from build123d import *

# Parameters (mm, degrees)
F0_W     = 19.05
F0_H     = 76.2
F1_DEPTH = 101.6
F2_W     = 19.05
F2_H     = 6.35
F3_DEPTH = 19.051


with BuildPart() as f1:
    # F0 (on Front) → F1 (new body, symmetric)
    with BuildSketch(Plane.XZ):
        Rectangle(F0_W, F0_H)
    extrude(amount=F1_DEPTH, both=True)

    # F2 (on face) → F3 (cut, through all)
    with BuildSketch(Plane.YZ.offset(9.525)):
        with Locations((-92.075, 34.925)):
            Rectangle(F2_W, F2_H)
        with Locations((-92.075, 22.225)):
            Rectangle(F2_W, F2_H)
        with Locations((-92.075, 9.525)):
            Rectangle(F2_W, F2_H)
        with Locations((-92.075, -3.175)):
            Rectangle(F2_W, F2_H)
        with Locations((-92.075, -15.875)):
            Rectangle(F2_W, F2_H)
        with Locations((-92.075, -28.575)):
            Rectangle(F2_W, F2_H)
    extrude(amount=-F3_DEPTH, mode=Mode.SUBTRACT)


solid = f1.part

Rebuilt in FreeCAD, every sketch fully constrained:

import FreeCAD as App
import Part
import Sketcher

V = App.Vector
Q = App.Units.Quantity

doc = App.newDocument("Part")
params = doc.addObject("Spreadsheet::Sheet", "Params")
for row, (alias, value) in enumerate([
    ("sketch1_height", "3 in"),
    ("sketch1_width", "0.75 in"),
    ("pad1_length", "8 in"),
    ("sketch2_width", "0.75 in"),
], start=1):
    params.set(f"A{row}", alias)
    params.set(f"B{row}", "=" + value)
    params.setAlias(f"B{row}", alias)

body = doc.addObject("PartDesign::Body", "Body")

sketch1 = body.newObject("Sketcher::SketchObject", "Sketch")
sketch1.AttachmentSupport = (doc.getObject("XZ_Plane"), [""])
sketch1.MapMode = "FlatFace"
sketch1.addGeometry([
    Part.LineSegment(V(-10, 38, 0), V(-10, -38, 0)),
    Part.LineSegment(V(-10, -38, 0), V(10, -38, 0)),
    Part.LineSegment(V(10, -38, 0), V(10, 38, 0)),
    Part.LineSegment(V(10, 38, 0), V(-10, 38, 0)),
], False)
sketch1.addConstraint([
    Sketcher.Constraint("Coincident", 0, 2, 1, 1),
    Sketcher.Constraint("Coincident", 1, 2, 2, 1),
    Sketcher.Constraint("Coincident", 2, 2, 3, 1),
    Sketcher.Constraint("Coincident", 3, 2, 0, 1),
    Sketcher.Constraint("Vertical", 0),
    Sketcher.Constraint("Horizontal", 1),
    Sketcher.Constraint("Vertical", 2),
    Sketcher.Constraint("Horizontal", 3),
    Sketcher.Constraint("Symmetric", 0, 2, 2, 2, -1, 1),
    Sketcher.Constraint("DistanceY", 0, 2, 0, 1, Q("3 in")),
    Sketcher.Constraint("DistanceX", 1, 1, 1, 2, Q("0.75 in")),
])
sketch1.setExpression("Constraints[9]", "Params.sketch1_height")
sketch1.setExpression("Constraints[10]", "Params.sketch1_width")
pad1 = body.newObject("PartDesign::Pad", "Pad")
pad1.Profile = sketch1
pad1.setExpression("Length", "Params.pad1_length")
pad1.Midplane = True

sketch2 = body.newObject("Sketcher::SketchObject", "Sketch001")
sketch2.AttachmentSupport = (doc.getObject("YZ_Plane"), [""])
sketch2.MapMode = "FlatFace"
sketch2.AttachmentOffset = App.Placement(V(0, 0, 0.375 * 25.4), App.Rotation())
sketch2.addGeometry([
    Part.LineSegment(V(-102, 38, 0), V(-102, 32, 0)),
    Part.LineSegment(V(-102, 32, 0), V(-83, 32, 0)),
    Part.LineSegment(V(-83, 32, 0), V(-83, 38, 0)),
    Part.LineSegment(V(-83, 38, 0), V(-102, 38, 0)),
    Part.LineSegment(V(-102, 25, 0), V(-102, 19, 0)),
    Part.LineSegment(V(-102, 19, 0), V(-83, 19, 0)),
    Part.LineSegment(V(-83, 19, 0), V(-83, 25, 0)),
    Part.LineSegment(V(-83, 25, 0), V(-102, 25, 0)),
    Part.LineSegment(V(-102, 13, 0), V(-102, 6, 0)),
    Part.LineSegment(V(-102, 6, 0), V(-83, 6, 0)),
    Part.LineSegment(V(-83, 6, 0), V(-83, 13, 0)),
    Part.LineSegment(V(-83, 13, 0), V(-102, 13, 0)),
    Part.LineSegment(V(-102, 0, 0), V(-102, -6, 0)),
    Part.LineSegment(V(-102, -6, 0), V(-83, -6, 0)),
    Part.LineSegment(V(-83, -6, 0), V(-83, 0, 0)),
    Part.LineSegment(V(-83, 0, 0), V(-102, 0, 0)),
    Part.LineSegment(V(-102, -13, 0), V(-102, -19, 0)),
    Part.LineSegment(V(-102, -19, 0), V(-83, -19, 0)),
    Part.LineSegment(V(-83, -19, 0), V(-83, -13, 0)),
    Part.LineSegment(V(-83, -13, 0), V(-102, -13, 0)),
    Part.LineSegment(V(-102, -25, 0), V(-102, -32, 0)),
    Part.LineSegment(V(-102, -32, 0), V(-83, -32, 0)),
    Part.LineSegment(V(-83, -32, 0), V(-83, -25, 0)),
    Part.LineSegment(V(-83, -25, 0), V(-102, -25, 0)),
], False)
sketch2.addConstraint([
    Sketcher.Constraint("Coincident", 0, 2, 1, 1),
    Sketcher.Constraint("Coincident", 1, 2, 2, 1),
    Sketcher.Constraint("Coincident", 2, 2, 3, 1),
    Sketcher.Constraint("Coincident", 3, 2, 0, 1),
    Sketcher.Constraint("Coincident", 4, 2, 5, 1),
    Sketcher.Constraint("Coincident", 5, 2, 6, 1),
    Sketcher.Constraint("Coincident", 6, 2, 7, 1),
    Sketcher.Constraint("Coincident", 7, 2, 4, 1),
    Sketcher.Constraint("Coincident", 8, 2, 9, 1),
    Sketcher.Constraint("Coincident", 9, 2, 10, 1),
    Sketcher.Constraint("Coincident", 10, 2, 11, 1),
    Sketcher.Constraint("Coincident", 11, 2, 8, 1),
    Sketcher.Constraint("Coincident", 12, 2, 13, 1),
    Sketcher.Constraint("Coincident", 13, 2, 14, 1),
    Sketcher.Constraint("Coincident", 14, 2, 15, 1),
    Sketcher.Constraint("Coincident", 15, 2, 12, 1),
    Sketcher.Constraint("Coincident", 16, 2, 17, 1),
    Sketcher.Constraint("Coincident", 17, 2, 18, 1),
    Sketcher.Constraint("Coincident", 18, 2, 19, 1),
    Sketcher.Constraint("Coincident", 19, 2, 16, 1),
    Sketcher.Constraint("Coincident", 20, 2, 21, 1),
    Sketcher.Constraint("Coincident", 21, 2, 22, 1),
    Sketcher.Constraint("Coincident", 22, 2, 23, 1),
    Sketcher.Constraint("Coincident", 23, 2, 20, 1),
    Sketcher.Constraint("Vertical", 0),
    Sketcher.Constraint("Horizontal", 1),
    Sketcher.Constraint("Vertical", 2),
    Sketcher.Constraint("Horizontal", 3),
    Sketcher.Constraint("Vertical", 4),
    Sketcher.Constraint("Horizontal", 5),
    Sketcher.Constraint("Vertical", 6),
    Sketcher.Constraint("Horizontal", 7),
    Sketcher.Constraint("Vertical", 8),
    Sketcher.Constraint("Horizontal", 9),
    Sketcher.Constraint("Vertical", 10),
    Sketcher.Constraint("Horizontal", 11),
    Sketcher.Constraint("Vertical", 12),
    Sketcher.Constraint("Horizontal", 13),
    Sketcher.Constraint("Vertical", 14),
    Sketcher.Constraint("Horizontal", 15),
    Sketcher.Constraint("Vertical", 16),
    Sketcher.Constraint("Horizontal", 17),
    Sketcher.Constraint("Vertical", 18),
    Sketcher.Constraint("Horizontal", 19),
    Sketcher.Constraint("Vertical", 20),
    Sketcher.Constraint("Horizontal", 21),
    Sketcher.Constraint("Vertical", 22),
    Sketcher.Constraint("Horizontal", 23),
    Sketcher.Constraint("Symmetric", 8, 2, 12, 2, -1),
    Sketcher.Constraint("Symmetric", 4, 2, 16, 2, -1),
    Sketcher.Constraint("Symmetric", 10, 2, 18, 2, -1),
    Sketcher.Constraint("Symmetric", 0, 2, 20, 2, -1),
    Sketcher.Constraint("Symmetric", 6, 2, 22, 2, -1),
    Sketcher.Constraint("PointOnObject", 14, 2, -1),
    Sketcher.Constraint("Vertical", 3, 2, 4, 2),
    Sketcher.Constraint("Vertical", 2, 2, 5, 2),
    Sketcher.Constraint("Vertical", 7, 2, 8, 2),
    Sketcher.Constraint("Vertical", 6, 2, 9, 2),
    Sketcher.Constraint("Vertical", 10, 2, 13, 2),
    Sketcher.Constraint("Equal", 2, 4),
    Sketcher.Constraint("Equal", 6, 8),
    Sketcher.Constraint("Equal", 10, 12),
    Sketcher.Constraint("Equal", 14, 16),
    Sketcher.Constraint("Equal", 18, 20),
    Sketcher.Constraint("DistanceX", 0, 2, -1, 1, Q("4 in")),
    Sketcher.Constraint("DistanceY", -1, 1, 6, 2, Q("1 in")),
    Sketcher.Constraint("DistanceX", 1, 1, 1, 2, Q("0.75 in")),
])
sketch2.setExpression("Constraints[66]", "Params.sketch2_width")
pocket1 = body.newObject("PartDesign::Pocket", "Pocket")
pocket1.Profile = sketch2
pocket1.Type = "ThroughAll"

doc.recompute()
